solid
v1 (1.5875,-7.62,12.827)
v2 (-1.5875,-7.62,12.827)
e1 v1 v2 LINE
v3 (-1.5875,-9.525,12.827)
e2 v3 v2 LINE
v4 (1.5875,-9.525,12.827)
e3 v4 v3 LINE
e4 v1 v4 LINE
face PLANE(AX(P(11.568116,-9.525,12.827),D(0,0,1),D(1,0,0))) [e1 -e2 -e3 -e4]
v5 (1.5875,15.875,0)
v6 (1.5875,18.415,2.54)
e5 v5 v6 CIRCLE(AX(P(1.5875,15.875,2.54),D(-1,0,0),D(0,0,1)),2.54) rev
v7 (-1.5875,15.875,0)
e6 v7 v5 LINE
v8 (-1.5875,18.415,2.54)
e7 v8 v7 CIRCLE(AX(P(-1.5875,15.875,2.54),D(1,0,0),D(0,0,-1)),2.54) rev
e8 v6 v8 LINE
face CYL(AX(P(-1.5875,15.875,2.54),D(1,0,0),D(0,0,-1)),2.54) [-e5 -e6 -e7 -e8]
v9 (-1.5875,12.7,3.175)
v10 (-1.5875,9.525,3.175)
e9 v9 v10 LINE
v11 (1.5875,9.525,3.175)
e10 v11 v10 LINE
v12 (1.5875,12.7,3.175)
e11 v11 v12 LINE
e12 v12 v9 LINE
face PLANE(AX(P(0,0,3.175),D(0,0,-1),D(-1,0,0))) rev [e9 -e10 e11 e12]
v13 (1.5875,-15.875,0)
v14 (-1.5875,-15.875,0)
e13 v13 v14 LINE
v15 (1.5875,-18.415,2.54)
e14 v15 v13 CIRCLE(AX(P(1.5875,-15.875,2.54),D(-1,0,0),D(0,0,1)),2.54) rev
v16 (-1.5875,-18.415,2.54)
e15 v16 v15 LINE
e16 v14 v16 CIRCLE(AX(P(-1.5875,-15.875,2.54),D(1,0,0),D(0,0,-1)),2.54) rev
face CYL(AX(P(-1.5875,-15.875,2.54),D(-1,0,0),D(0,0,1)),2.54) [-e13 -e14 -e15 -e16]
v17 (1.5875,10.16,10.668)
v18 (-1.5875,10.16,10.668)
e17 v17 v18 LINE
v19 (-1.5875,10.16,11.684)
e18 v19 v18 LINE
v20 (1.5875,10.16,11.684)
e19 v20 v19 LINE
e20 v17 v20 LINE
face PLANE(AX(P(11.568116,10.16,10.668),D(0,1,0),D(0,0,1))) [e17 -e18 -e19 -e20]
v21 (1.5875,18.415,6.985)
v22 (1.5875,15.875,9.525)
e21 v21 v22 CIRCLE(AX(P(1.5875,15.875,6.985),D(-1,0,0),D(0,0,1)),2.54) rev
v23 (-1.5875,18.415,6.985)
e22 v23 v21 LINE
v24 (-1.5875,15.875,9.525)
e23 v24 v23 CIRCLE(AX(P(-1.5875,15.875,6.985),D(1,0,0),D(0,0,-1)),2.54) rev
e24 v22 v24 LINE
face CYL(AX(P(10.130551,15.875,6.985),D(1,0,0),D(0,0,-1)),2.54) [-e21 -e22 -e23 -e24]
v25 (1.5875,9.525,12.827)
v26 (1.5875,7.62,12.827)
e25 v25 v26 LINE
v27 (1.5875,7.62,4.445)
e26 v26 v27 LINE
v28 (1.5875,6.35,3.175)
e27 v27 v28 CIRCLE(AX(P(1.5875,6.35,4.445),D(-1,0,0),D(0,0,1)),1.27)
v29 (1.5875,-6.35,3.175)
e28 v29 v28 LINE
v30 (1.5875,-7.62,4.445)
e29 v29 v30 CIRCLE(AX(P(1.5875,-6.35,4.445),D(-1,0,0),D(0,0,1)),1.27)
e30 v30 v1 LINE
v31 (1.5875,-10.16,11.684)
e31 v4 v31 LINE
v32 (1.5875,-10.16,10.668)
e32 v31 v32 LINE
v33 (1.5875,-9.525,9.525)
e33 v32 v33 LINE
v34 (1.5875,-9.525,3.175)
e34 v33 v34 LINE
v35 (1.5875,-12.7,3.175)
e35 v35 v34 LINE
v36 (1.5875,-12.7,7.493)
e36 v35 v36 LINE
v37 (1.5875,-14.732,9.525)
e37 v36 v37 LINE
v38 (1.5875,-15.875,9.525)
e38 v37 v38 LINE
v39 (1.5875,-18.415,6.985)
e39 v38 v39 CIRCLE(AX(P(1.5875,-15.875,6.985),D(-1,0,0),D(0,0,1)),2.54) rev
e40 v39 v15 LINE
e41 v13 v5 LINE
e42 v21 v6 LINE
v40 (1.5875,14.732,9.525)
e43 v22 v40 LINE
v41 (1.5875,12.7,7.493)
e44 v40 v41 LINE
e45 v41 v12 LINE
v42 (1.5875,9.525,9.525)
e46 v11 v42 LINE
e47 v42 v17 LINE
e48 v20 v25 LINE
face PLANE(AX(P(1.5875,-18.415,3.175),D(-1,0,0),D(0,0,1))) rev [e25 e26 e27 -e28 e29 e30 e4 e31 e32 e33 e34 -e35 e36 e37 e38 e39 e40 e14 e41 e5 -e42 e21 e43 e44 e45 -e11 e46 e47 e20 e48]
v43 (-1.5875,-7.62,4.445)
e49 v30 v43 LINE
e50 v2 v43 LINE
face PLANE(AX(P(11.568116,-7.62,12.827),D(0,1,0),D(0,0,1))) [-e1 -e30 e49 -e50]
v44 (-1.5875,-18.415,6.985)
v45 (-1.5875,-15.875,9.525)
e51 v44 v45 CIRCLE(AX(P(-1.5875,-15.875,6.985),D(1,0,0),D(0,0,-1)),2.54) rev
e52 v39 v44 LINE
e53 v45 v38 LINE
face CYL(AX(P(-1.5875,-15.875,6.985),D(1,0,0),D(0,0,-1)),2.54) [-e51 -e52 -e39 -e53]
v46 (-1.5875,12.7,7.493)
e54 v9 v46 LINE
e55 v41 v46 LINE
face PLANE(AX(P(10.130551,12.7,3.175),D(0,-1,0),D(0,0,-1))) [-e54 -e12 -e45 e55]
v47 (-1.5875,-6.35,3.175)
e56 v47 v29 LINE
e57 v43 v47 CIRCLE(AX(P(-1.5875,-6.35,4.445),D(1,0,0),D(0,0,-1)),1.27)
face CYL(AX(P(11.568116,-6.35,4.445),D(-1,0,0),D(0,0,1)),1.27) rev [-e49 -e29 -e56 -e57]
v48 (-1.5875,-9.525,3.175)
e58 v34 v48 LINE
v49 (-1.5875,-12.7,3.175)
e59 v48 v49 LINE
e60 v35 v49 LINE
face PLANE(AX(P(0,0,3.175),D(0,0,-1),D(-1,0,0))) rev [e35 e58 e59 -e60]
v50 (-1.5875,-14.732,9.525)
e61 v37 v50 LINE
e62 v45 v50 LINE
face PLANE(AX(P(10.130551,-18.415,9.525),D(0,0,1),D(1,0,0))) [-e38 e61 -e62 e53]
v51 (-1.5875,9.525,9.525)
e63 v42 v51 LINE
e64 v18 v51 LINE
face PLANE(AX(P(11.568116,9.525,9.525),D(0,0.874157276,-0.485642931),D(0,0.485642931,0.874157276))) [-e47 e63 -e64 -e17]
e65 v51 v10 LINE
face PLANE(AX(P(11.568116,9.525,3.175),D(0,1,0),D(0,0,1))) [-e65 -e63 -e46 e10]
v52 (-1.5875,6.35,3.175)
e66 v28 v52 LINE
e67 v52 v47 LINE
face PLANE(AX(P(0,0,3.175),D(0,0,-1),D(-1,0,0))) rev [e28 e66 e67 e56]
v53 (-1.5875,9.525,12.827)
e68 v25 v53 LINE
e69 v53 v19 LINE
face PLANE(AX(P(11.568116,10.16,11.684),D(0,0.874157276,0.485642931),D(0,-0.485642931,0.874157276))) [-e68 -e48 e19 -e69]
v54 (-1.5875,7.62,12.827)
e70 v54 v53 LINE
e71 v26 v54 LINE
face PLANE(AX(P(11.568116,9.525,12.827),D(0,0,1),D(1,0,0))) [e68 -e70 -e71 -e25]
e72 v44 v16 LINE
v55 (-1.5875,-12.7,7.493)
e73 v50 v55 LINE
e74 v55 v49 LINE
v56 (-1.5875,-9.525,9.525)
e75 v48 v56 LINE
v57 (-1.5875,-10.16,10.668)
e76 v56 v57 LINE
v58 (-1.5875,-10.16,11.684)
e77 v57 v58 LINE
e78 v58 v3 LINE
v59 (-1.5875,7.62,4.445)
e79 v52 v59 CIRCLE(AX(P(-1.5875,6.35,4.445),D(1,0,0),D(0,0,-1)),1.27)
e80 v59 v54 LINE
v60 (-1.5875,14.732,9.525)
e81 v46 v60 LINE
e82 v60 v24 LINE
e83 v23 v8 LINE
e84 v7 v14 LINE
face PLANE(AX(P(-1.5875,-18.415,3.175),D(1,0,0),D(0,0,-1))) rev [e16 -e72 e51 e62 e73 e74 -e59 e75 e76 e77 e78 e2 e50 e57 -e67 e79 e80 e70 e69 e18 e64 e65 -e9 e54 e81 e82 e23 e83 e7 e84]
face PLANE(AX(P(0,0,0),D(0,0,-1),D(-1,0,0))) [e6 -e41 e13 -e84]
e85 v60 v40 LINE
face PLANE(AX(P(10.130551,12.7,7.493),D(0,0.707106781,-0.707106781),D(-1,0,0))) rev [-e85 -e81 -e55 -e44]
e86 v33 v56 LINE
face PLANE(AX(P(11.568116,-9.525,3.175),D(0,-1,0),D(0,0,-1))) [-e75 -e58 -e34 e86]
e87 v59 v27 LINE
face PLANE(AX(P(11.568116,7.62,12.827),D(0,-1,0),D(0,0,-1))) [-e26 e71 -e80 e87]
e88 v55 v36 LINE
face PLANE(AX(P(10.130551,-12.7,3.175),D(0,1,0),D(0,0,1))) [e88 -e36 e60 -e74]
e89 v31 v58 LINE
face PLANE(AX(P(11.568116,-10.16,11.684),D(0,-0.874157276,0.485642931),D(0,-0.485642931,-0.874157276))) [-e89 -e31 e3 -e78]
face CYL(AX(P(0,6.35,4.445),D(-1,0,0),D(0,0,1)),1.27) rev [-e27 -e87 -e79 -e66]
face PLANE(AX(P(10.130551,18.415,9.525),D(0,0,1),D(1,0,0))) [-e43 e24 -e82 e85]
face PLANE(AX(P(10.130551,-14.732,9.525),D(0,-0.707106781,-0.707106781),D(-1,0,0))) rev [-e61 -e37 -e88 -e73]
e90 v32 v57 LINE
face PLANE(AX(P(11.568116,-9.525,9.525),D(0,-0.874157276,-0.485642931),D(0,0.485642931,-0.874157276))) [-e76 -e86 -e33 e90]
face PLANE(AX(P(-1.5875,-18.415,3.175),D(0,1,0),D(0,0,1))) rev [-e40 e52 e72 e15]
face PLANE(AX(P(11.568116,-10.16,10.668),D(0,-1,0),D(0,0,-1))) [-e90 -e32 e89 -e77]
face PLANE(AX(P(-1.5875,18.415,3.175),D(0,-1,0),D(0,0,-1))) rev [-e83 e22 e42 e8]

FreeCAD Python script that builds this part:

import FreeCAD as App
import Part
import Sketcher
Q = App.Units.Quantity


def edges_at(feature, points):
    """Names of the edges that pass closest to the given points."""
    edges = feature.Shape.Edges
    near = lambda p: min(range(len(edges)), key=lambda i: edges[i].distToShape(Part.Vertex(*p))[0])
    return sorted({f"Edge{near(p) + 1}" for p in points})

doc = App.newDocument("Part")
params = doc.addObject("Spreadsheet::Sheet", "Params")
for row, (alias, value) in enumerate([
    ("sketch1_height", "1.45 in"),
    ("sketch1_width", "0.125 in"),
    ("pad1_length", "0.125 in"),
    ("sketch2_height", "0.25 in"),
    ("sketch2_width", "0.225 in"),
    ("pad2_length", "0.125 in"),
    ("sketch3_height", "0.25 in"),
    ("sketch3_height2", "0.38 in"),
    ("sketch3_height3", "0.04 in"),
    ("sketch3_width", "0.075 in"),
    ("pad3_length", "0.125 in"),
    ("fillet_radius", "0.05 in"),
    ("fillet2_radius", "0.1 in"),
    ("chamfer_size", "0.08 in"),
], start=1):
    params.set(f"A{row}", alias)
    params.set(f"B{row}", "=" + value)
    params.setAlias(f"B{row}", alias)

body = doc.addObject("PartDesign::Body", "Body")

sketch1 = doc.addObject("Sketcher::SketchObject", "Sketch")
body.addObject(sketch1)
sketch1.AttachmentSupport = (doc.XY_Plane, [""])
sketch1.MapMode = "FlatFace"
sketch1.addGeometry([
    Part.LineSegment(App.Vector(-1.6, 18.4, 0), App.Vector(-1.6, -18.4, 0)),
    Part.LineSegment(App.Vector(-1.6, -18.4, 0), App.Vector(1.6, -18.4, 0)),
    Part.LineSegment(App.Vector(1.6, -18.4, 0), App.Vector(1.6, 18.4, 0)),
    Part.LineSegment(App.Vector(1.6, 18.4, 0), App.Vector(-1.6, 18.4, 0)),
], False)
sketch1.addConstraint([
    Sketcher.Constraint("Coincident", 0, 2, 1, 1),
    Sketcher.Constraint("Coincident", 1, 2, 2, 1),
    Sketcher.Constraint("Coincident", 2, 2, 3, 1),
    Sketcher.Constraint("Coincident", 3, 2, 0, 1),
    Sketcher.Constraint("Vertical", 0),
    Sketcher.Constraint("Horizontal", 1),
    Sketcher.Constraint("Vertical", 2),
    Sketcher.Constraint("Horizontal", 3),
    Sketcher.Constraint("Symmetric", 0, 2, 2, 2, -1, 1),
    Sketcher.Constraint("DistanceY", 0, 2, 0, 1, Q("1.45 in")),
    Sketcher.Constraint("DistanceX", 1, 1, 1, 2, Q("0.125 in")),
])
sketch1.setExpression("Constraints[9]", "Params.sketch1_height")
sketch1.setExpression("Constraints[10]", "Params.sketch1_width")
pad1 = doc.addObject("PartDesign::Pad", "Pad")
body.addObject(pad1)
pad1.Profile = sketch1
pad1.setExpression("Length", "Params.pad1_length")

sketch2 = doc.addObject("Sketcher::SketchObject", "Sketch001")
body.addObject(sketch2)
sketch2.AttachmentSupport = (doc.YZ_Plane, [""])
sketch2.MapMode = "FlatFace"
sketch2.AttachmentOffset = App.Placement(App.Vector(0, 0, -0.0625 * 25.4), App.Rotation())
sketch2.addGeometry([
    Part.LineSegment(App.Vector(18, 3, 0), App.Vector(13, 3, 0)),
    Part.LineSegment(App.Vector(13, 3, 0), App.Vector(13, 10, 0)),
    Part.LineSegment(App.Vector(13, 10, 0), App.Vector(18, 10, 0)),
    Part.LineSegment(App.Vector(18, 10, 0), App.Vector(18, 3, 0)),
    Part.LineSegment(App.Vector(-13, 3, 0), App.Vector(-18, 3, 0)),
    Part.LineSegment(App.Vector(-18, 3, 0), App.Vector(-18, 10, 0)),
    Part.LineSegment(App.Vector(-18, 10, 0), App.Vector(-13, 10, 0)),
    Part.LineSegment(App.Vector(-13, 10, 0), App.Vector(-13, 3, 0)),
], False)
sketch2.addConstraint([
    Sketcher.Constraint("Coincident", 0, 2, 1, 1),
    Sketcher.Constraint("Coincident", 1, 2, 2, 1),
    Sketcher.Constraint("Coincident", 2, 2, 3, 1),
    Sketcher.Constraint("Coincident", 3, 2, 0, 1),
    Sketcher.Constraint("Coincident", 4, 2, 5, 1),
    Sketcher.Constraint("Coincident", 5, 2, 6, 1),
    Sketcher.Constraint("Coincident", 6, 2, 7, 1),
    Sketcher.Constraint("Coincident", 7, 2, 4, 1),
    Sketcher.Constraint("Horizontal", 0),
    Sketcher.Constraint("Vertical", 1),
    Sketcher.Constraint("Horizontal", 2),
    Sketcher.Constraint("Vertical", 3),
    Sketcher.Constraint("Horizontal", 4),
    Sketcher.Constraint("Vertical", 5),
    Sketcher.Constraint("Horizontal", 6),
    Sketcher.Constraint("Vertical", 7),
    Sketcher.Constraint("Symmetric", 3, 2, 4, 2, -2),
    Sketcher.Constraint("Symmetric", 1, 2, 6, 2, -2),
    Sketcher.Constraint("DistanceX", 6, 2, 1, 2, Q("1 in")),
    Sketcher.Constraint("DistanceY", 1, 1, 1, 2, Q("0.25 in")),
    Sketcher.Constraint("DistanceX", 0, 2, 0, 1, Q("0.225 in")),
    Sketcher.Constraint("DistanceY", -1, 1, 0, 2, Q("0.125 in")),
])
sketch2.setExpression("Constraints[19]", "Params.sketch2_height")
sketch2.setExpression("Constraints[20]", "Params.sketch2_width")
pad2 = doc.addObject("PartDesign::Pad", "Pad001")
body.addObject(pad2)
pad2.Profile = sketch2
pad2.setExpression("Length", "Params.pad2_length")

sketch3 = doc.addObject("Sketcher::SketchObject", "Sketch002")
body.addObject(sketch3)
sketch3.AttachmentSupport = (doc.YZ_Plane, [""])
sketch3.MapMode = "FlatFace"
sketch3.AttachmentOffset = App.Placement(App.Vector(0, 0, -0.0625 * 25.4), App.Rotation())
sketch3.addGeometry([
    Part.LineSegment(App.Vector(9.5, 9.5, 0), App.Vector(9.5, 3.2, 0)),
    Part.LineSegment(App.Vector(9.5, 3.2, 0), App.Vector(7.6, 3.2, 0)),
    Part.LineSegment(App.Vector(7.6, 3.2, 0), App.Vector(7.6, 12.8, 0)),
    Part.LineSegment(App.Vector(7.6, 12.8, 0), App.Vector(9.5, 12.8, 0)),
    Part.LineSegment(App.Vector(9.5, 12.8, 0), App.Vector(10.2, 11.7, 0)),
    Part.LineSegment(App.Vector(10.2, 11.7, 0), App.Vector(10.2, 10.7, 0)),
    Part.LineSegment(App.Vector(10.2, 10.7, 0), App.Vector(9.5, 9.5, 0)),
    Part.LineSegment(App.Vector(-7.6, 12.8, 0), App.Vector(-7.6, 3.2, 0)),
    Part.LineSegment(App.Vector(-7.6, 3.2, 0), App.Vector(-9.5, 3.2, 0)),
    Part.LineSegment(App.Vector(-9.5, 3.2, 0), App.Vector(-9.5, 9.5, 0)),
    Part.LineSegment(App.Vector(-9.5, 9.5, 0), App.Vector(-10.2, 10.7, 0)),
    Part.LineSegment(App.Vector(-10.2, 10.7, 0), App.Vector(-10.2, 11.7, 0)),
    Part.LineSegment(App.Vector(-10.2, 11.7, 0), App.Vector(-9.5, 12.8, 0)),
    Part.LineSegment(App.Vector(-9.5, 12.8, 0), App.Vector(-7.6, 12.8, 0)),
], False)
sketch3.addConstraint([
    Sketcher.Constraint("Coincident", 0, 2, 1, 1),
    Sketcher.Constraint("Coincident", 1, 2, 2, 1),
    Sketcher.Constraint("Coincident", 2, 2, 3, 1),
    Sketcher.Constraint("Coincident", 3, 2, 4, 1),
    Sketcher.Constraint("Coincident", 4, 2, 5, 1),
    Sketcher.Constraint("Coincident", 5, 2, 6, 1),
    Sketcher.Constraint("Coincident", 6, 2, 0, 1),
    Sketcher.Constraint("Coincident", 7, 2, 8, 1),
    Sketcher.Constraint("Coincident", 8, 2, 9, 1),
    Sketcher.Constraint("Coincident", 9, 2, 10, 1),
    Sketcher.Constraint("Coincident", 10, 2, 11, 1),
    Sketcher.Constraint("Coincident", 11, 2, 12, 1),
    Sketcher.Constraint("Coincident", 12, 2, 13, 1),
    Sketcher.Constraint("Coincident", 13, 2, 7, 1),
    Sketcher.Constraint("Vertical", 0),
    Sketcher.Constraint("Horizontal", 1),
    Sketcher.Constraint("Vertical", 2),
    Sketcher.Constraint("Horizontal", 3),
    Sketcher.Constraint("Vertical", 5),
    Sketcher.Constraint("Vertical", 7),
    Sketcher.Constraint("Horizontal", 8),
    Sketcher.Constraint("Vertical", 9),
    Sketcher.Constraint("Vertical", 11),
    Sketcher.Constraint("Horizontal", 13),
    Sketcher.Constraint("Symmetric", 1, 2, 7, 2, -2),
    Sketcher.Constraint("Symmetric", 6, 2, 9, 2, -2),
    Sketcher.Constraint("Symmetric", 5, 2, 10, 2, -2),
    Sketcher.Constraint("Symmetric", 3, 2, 12, 2, -2),
    Sketcher.Constraint("Parallel", 4, 10),
    Sketcher.Constraint("Parallel", 6, 12),
    Sketcher.Constraint("Vertical", 0, 2, 3, 2),
    Sketcher.Constraint("DistanceY", 0, 2, 0, 1, Q("0.25 in")),
    Sketcher.Constraint("DistanceY", 2, 1, 2, 2, Q("0.38 in")),
    Sketcher.Constraint("DistanceY", 5, 2, 5, 1, Q("0.04 in")),
    Sketcher.Constraint("DistanceX", -1, 1, 1, 2, Q("0.3 in")),
    Sketcher.Constraint("DistanceX", -1, 1, 4, 2, Q("0.4 in")),
    Sketcher.Constraint("DistanceX", 1, 2, 1, 1, Q("0.075 in")),
    Sketcher.Constraint("DistanceY", -1, 1, 4, 2, Q("0.46 in")),
])
sketch3.setExpression("Constraints[31]", "Params.sketch3_height")
sketch3.setExpression("Constraints[32]", "Params.sketch3_height2")
sketch3.setExpression("Constraints[33]", "Params.sketch3_height3")
sketch3.setExpression("Constraints[36]", "Params.sketch3_width")
pad3 = doc.addObject("PartDesign::Pad", "Pad002")
body.addObject(pad3)
pad3.Profile = sketch3
pad3.setExpression("Length", "Params.pad3_length")
doc.recompute()

fillet = doc.addObject("PartDesign::Fillet", "Fillet")
body.addObject(fillet)
fillet.Base = (pad3, edges_at(pad3, [(0, 7.62, 3.175), (0, -7.62, 3.175)]))
fillet.setExpression("Radius", "Params.fillet_radius")
doc.recompute()

fillet2 = doc.addObject("PartDesign::Fillet", "Fillet001")
body.addObject(fillet2)
fillet2.Base = (fillet, edges_at(fillet, [
    (0, 18.415, 9.525),
    (0, -18.415, 9.525),
    (0, -18.415, 0),
    (0, 18.415, 0),
]))
fillet2.setExpression("Radius", "Params.fillet2_radius")
doc.recompute()

chamfer = doc.addObject("PartDesign::Chamfer", "Chamfer")
body.addObject(chamfer)
chamfer.Base = (fillet2, edges_at(fillet2, [(0, 12.7, 9.525), (0, -12.7, 9.525)]))
chamfer.setExpression("Size", "Params.chamfer_size")

doc.recompute()
